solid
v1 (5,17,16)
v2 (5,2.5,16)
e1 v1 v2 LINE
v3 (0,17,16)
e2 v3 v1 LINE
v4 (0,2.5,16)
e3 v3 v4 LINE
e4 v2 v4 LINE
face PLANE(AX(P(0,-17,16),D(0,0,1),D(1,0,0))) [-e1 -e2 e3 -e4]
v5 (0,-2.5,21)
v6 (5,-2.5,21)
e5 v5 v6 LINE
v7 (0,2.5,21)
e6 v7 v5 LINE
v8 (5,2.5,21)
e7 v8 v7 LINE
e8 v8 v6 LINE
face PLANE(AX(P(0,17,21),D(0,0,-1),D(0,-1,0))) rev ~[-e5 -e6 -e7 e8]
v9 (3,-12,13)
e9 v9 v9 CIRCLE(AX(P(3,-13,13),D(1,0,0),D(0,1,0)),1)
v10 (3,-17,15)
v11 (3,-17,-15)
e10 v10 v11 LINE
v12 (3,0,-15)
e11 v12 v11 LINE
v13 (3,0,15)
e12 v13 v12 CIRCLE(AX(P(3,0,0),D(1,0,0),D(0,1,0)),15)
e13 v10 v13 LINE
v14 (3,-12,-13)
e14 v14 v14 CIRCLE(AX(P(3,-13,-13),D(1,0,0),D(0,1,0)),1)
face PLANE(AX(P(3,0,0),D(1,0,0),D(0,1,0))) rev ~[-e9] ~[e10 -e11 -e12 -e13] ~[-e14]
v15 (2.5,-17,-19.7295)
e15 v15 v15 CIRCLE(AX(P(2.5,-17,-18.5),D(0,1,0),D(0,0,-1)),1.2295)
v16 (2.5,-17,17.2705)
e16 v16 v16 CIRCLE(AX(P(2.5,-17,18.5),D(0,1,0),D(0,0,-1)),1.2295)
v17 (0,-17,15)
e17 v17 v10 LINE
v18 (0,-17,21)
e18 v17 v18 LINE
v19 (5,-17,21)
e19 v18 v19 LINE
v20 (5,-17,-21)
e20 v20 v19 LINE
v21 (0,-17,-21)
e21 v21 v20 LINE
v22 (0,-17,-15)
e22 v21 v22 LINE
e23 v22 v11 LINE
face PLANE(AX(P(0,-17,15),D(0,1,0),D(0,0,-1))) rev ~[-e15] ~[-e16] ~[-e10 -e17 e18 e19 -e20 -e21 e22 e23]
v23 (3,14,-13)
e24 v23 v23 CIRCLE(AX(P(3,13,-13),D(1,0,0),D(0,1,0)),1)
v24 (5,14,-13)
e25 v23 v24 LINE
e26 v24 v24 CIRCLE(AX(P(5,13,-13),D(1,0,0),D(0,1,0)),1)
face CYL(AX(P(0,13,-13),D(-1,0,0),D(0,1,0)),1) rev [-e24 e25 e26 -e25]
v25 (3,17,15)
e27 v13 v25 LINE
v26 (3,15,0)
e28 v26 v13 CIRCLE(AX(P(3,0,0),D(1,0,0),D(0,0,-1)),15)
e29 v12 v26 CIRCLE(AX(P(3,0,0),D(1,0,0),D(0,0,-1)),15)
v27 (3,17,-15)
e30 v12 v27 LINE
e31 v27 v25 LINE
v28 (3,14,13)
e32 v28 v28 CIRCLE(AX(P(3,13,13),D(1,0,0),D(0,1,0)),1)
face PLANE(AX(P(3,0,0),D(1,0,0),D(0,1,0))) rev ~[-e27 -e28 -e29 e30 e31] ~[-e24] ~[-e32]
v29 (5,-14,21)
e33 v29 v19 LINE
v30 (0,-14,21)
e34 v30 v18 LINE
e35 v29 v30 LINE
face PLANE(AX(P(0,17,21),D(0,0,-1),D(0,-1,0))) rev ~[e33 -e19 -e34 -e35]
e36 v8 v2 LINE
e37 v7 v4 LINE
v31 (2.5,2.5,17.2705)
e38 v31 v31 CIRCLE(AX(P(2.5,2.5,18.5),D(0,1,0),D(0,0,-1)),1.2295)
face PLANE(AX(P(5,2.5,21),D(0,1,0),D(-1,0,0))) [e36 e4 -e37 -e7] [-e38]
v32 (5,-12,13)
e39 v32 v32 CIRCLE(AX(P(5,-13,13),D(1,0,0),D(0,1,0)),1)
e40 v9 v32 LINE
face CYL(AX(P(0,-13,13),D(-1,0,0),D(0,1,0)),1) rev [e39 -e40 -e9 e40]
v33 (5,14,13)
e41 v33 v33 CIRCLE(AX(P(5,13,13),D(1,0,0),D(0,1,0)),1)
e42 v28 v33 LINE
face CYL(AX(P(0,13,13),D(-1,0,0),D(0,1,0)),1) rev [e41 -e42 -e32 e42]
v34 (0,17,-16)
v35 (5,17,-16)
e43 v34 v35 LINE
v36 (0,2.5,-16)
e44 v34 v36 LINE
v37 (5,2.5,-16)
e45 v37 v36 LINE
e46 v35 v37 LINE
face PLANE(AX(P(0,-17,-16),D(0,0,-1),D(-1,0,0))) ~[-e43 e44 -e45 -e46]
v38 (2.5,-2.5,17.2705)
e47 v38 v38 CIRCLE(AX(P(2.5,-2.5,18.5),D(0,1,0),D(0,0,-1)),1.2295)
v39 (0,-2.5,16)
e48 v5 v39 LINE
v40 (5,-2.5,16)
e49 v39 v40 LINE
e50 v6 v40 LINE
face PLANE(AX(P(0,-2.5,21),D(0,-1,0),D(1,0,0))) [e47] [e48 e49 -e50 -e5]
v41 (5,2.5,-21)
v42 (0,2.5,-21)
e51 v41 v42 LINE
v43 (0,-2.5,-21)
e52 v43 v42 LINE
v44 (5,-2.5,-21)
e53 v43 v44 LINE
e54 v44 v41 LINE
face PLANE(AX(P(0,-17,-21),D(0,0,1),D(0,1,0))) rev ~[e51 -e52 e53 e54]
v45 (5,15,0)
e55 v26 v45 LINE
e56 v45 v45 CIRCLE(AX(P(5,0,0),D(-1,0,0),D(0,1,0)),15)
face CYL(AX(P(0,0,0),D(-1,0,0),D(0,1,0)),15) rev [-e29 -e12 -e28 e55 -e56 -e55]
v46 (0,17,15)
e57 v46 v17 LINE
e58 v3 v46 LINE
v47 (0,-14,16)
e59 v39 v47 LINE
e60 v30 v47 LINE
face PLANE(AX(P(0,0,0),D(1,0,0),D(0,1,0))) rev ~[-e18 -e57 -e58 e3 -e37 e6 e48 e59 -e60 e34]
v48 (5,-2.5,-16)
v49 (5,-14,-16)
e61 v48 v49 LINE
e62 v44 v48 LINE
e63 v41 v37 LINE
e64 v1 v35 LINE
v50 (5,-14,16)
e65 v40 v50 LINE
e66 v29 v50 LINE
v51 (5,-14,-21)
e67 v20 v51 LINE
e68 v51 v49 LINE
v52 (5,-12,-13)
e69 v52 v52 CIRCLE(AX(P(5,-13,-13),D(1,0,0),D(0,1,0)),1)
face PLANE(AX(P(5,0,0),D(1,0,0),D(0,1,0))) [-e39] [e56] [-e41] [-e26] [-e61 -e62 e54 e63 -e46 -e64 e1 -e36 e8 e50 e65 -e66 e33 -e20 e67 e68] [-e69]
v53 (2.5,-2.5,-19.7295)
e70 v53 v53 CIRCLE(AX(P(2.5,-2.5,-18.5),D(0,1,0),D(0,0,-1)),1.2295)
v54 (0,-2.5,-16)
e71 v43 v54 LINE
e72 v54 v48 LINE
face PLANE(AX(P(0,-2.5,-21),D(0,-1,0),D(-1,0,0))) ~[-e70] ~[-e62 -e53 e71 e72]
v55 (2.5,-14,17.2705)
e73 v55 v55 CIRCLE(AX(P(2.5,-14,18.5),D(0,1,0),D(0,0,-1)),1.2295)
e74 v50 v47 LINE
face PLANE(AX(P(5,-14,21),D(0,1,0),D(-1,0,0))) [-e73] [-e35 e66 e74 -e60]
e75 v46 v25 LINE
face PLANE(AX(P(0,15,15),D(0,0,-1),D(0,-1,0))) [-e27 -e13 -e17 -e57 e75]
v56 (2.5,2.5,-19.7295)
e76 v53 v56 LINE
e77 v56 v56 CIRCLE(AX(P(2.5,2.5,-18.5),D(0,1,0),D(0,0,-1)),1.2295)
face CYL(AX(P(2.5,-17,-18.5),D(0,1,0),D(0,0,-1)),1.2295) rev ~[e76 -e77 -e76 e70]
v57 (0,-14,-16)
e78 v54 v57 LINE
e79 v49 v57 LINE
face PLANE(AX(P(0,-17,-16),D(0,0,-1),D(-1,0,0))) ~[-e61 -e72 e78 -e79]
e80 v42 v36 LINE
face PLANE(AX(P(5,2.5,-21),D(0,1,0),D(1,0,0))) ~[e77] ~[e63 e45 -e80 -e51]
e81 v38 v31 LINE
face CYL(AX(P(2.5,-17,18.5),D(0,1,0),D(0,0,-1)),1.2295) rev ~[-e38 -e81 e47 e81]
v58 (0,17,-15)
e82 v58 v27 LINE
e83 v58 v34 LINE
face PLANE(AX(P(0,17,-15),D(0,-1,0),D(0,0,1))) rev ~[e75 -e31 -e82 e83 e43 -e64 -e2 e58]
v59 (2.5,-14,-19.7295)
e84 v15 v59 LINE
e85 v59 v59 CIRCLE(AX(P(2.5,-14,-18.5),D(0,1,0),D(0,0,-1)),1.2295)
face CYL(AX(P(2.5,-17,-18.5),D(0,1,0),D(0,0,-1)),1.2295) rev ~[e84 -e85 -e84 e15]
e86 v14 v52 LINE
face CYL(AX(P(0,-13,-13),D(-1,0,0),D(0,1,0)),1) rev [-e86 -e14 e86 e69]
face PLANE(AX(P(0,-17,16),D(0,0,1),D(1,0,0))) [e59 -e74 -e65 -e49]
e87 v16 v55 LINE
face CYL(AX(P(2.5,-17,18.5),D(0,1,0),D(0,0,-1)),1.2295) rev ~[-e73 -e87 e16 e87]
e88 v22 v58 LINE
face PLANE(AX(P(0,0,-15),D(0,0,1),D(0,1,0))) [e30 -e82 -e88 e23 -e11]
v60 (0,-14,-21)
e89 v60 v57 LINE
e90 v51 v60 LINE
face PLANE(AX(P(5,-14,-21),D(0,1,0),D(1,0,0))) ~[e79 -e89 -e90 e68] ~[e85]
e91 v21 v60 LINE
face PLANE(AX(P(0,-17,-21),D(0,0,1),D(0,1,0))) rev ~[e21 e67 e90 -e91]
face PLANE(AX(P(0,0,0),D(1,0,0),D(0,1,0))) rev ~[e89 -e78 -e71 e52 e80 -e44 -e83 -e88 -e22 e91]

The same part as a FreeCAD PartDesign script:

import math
import FreeCAD as App
import Part
import Sketcher
Q = App.Units.Quantity

doc = App.newDocument("Part")
body = doc.addObject("PartDesign::Body", "Body")

# Sketch on YZ plane
sketch1 = body.newObject("Sketcher::SketchObject", "Sketch")
sketch1.AttachmentSupport = (doc.getObject("YZ_Plane"), [""])
sketch1.MapMode = "FlatFace"
sketch1.addGeometry(Part.LineSegment(App.Vector(17, 21, 0), App.Vector(-17, 21, 0)), False)
sketch1.addGeometry(Part.LineSegment(App.Vector(-17, 21, 0), App.Vector(-17, -21, 0)), False)
sketch1.addGeometry(Part.LineSegment(App.Vector(-17, -21, 0), App.Vector(17, -21, 0)), False)
sketch1.addGeometry(Part.LineSegment(App.Vector(17, -21, 0), App.Vector(17, 21, 0)), False)
sketch1.addConstraint(Sketcher.Constraint("Coincident", 0, 2, 1, 1))
sketch1.addConstraint(Sketcher.Constraint("Coincident", 1, 2, 2, 1))
sketch1.addConstraint(Sketcher.Constraint("Coincident", 2, 2, 3, 1))
sketch1.addConstraint(Sketcher.Constraint("Coincident", 3, 2, 0, 1))
sketch1.addConstraint(Sketcher.Constraint("Horizontal", 0))
sketch1.addConstraint(Sketcher.Constraint("Vertical", 1))
sketch1.addConstraint(Sketcher.Constraint("Horizontal", 2))
sketch1.addConstraint(Sketcher.Constraint("Vertical", 3))
sketch1.addConstraint(Sketcher.Constraint("Symmetric", 0, 2, 2, 2, -1, 1))
sketch1.addConstraint(Sketcher.Constraint("DistanceX", 0, 2, 0, 1, Q("34 mm")))
sketch1.addConstraint(Sketcher.Constraint("DistanceY", 1, 2, 1, 1, Q("42 mm")))
pad1 = body.newObject("PartDesign::Pad", "Pad")
pad1.Profile = sketch1
pad1.Length = 5

# Sketch on YZ plane
sketch2 = body.newObject("Sketcher::SketchObject", "Sketch001")
sketch2.AttachmentSupport = (doc.getObject("YZ_Plane"), [""])
sketch2.MapMode = "FlatFace"
sketch2.addGeometry(Part.ArcOfCircle(Part.Circle(App.Vector(0, 0, 0), App.Vector(0, 0, 1), 15), math.radians(-90), math.radians(90)), False)
sketch2.addGeometry(Part.LineSegment(App.Vector(0, -15, 0), App.Vector(17, -15, 0)), False)
sketch2.addGeometry(Part.LineSegment(App.Vector(17, -15, 0), App.Vector(17, 15, 0)), False)
sketch2.addGeometry(Part.LineSegment(App.Vector(17, 15, 0), App.Vector(0, 15, 0)), False)
sketch2.addGeometry(Part.Circle(App.Vector(13, -13, 0), App.Vector(0, 0, 1), 1), False)
sketch2.addGeometry(Part.Circle(App.Vector(13, 13, 0), App.Vector(0, 0, 1), 1), False)
sketch2.addGeometry(Part.ArcOfCircle(Part.Circle(App.Vector(0, 0, 0), App.Vector(0, 0, 1), 15), math.radians(90), math.radians(270)), False)
sketch2.addGeometry(Part.LineSegment(App.Vector(0, 15, 0), App.Vector(-17, 15, 0)), False)
sketch2.addGeometry(Part.LineSegment(App.Vector(-17, 15, 0), App.Vector(-17, -15, 0)), False)
sketch2.addGeometry(Part.LineSegment(App.Vector(-17, -15, 0), App.Vector(0, -15, 0)), False)
sketch2.addGeometry(Part.Circle(App.Vector(-13, -13, 0), App.Vector(0, 0, 1), 1), False)
sketch2.addGeometry(Part.Circle(App.Vector(-13, 13, 0), App.Vector(0, 0, 1), 1), False)
sketch2.addConstraint(Sketcher.Constraint("Tangent", 0, 1, 1, 1))
sketch2.addConstraint(Sketcher.Constraint("Coincident", 1, 2, 2, 1))
sketch2.addConstraint(Sketcher.Constraint("Coincident", 2, 2, 3, 1))
sketch2.addConstraint(Sketcher.Constraint("Tangent", 3, 2, 0, 2))
sketch2.addConstraint(Sketcher.Constraint("Tangent", 6, 1, 7, 1))
sketch2.addConstraint(Sketcher.Constraint("Coincident", 7, 2, 8, 1))
sketch2.addConstraint(Sketcher.Constraint("Coincident", 8, 2, 9, 1))
sketch2.addConstraint(Sketcher.Constraint("Tangent", 9, 2, 6, 2))
sketch2.addConstraint(Sketcher.Constraint("Horizontal", 1))
sketch2.addConstraint(Sketcher.Constraint("Vertical", 2))
sketch2.addConstraint(Sketcher.Constraint("Horizontal", 3))
sketch2.addConstraint(Sketcher.Constraint("Horizontal", 7))
sketch2.addConstraint(Sketcher.Constraint("Vertical", 8))
sketch2.addConstraint(Sketcher.Constraint("Horizontal", 9))
sketch2.addConstraint(Sketcher.Constraint("Coincident", 0, 3, -1, 1))
sketch2.addConstraint(Sketcher.Constraint("Coincident", 6, 3, -1, 1))
sketch2.addConstraint(Sketcher.Constraint("Equal", 4, 5))
sketch2.addConstraint(Sketcher.Constraint("Equal", 0, 6))
sketch2.addConstraint(Sketcher.Constraint("Equal", 5, 10))
sketch2.addConstraint(Sketcher.Constraint("Equal", 10, 11))
sketch2.addConstraint(Sketcher.Constraint("Symmetric", 5, 3, 10, 3, -1, 1))
sketch2.addConstraint(Sketcher.Constraint("Symmetric", 4, 3, 11, 3, -1, 1))
sketch2.addConstraint(Sketcher.Constraint("Symmetric", 4, 3, 10, 3, -2))
sketch2.addConstraint(Sketcher.Constraint("Equal", 3, 7))
sketch2.addConstraint(Sketcher.Constraint("Diameter", 4, Q("2 mm")))
sketch2.addConstraint(Sketcher.Constraint("Radius", 0, Q("15 mm")))
sketch2.addConstraint(Sketcher.Constraint("DistanceY", 4, 3, 5, 3, Q("26 mm")))
sketch2.addConstraint(Sketcher.Constraint("DistanceX", 10, 3, 4, 3, Q("26 mm")))
sketch2.addConstraint(Sketcher.Constraint("DistanceX", 1, 1, 1, 2, Q("17 mm")))
pocket1 = body.newObject("PartDesign::Pocket", "Pocket")
pocket1.Profile = sketch2
pocket1.Length = 3
pocket1.Reversed = True

# Sketch on YZ plane
sketch3 = body.newObject("Sketcher::SketchObject", "Sketch002")
sketch3.AttachmentSupport = (doc.getObject("YZ_Plane"), [""])
sketch3.MapMode = "FlatFace"
sketch3.addGeometry(Part.Circle(App.Vector(0, 0, 0), App.Vector(0, 0, 1), 15), False)
sketch3.addGeometry(Part.Circle(App.Vector(13, -13, 0), App.Vector(0, 0, 1), 1), False)
sketch3.addGeometry(Part.Circle(App.Vector(13, 13, 0), App.Vector(0, 0, 1), 1), False)
sketch3.addGeometry(Part.Circle(App.Vector(-13, -13, 0), App.Vector(0, 0, 1), 1), False)
sketch3.addGeometry(Part.Circle(App.Vector(-13, 13, 0), App.Vector(0, 0, 1), 1), False)
sketch3.addConstraint(Sketcher.Constraint("Coincident", 0, 3, -1, 1))
sketch3.addConstraint(Sketcher.Constraint("Equal", 1, 2))
sketch3.addConstraint(Sketcher.Constraint("Equal", 2, 3))
sketch3.addConstraint(Sketcher.Constraint("Equal", 3, 4))
sketch3.addConstraint(Sketcher.Constraint("Symmetric", 2, 3, 3, 3, -1, 1))
sketch3.addConstraint(Sketcher.Constraint("Symmetric", 1, 3, 4, 3, -1, 1))
sketch3.addConstraint(Sketcher.Constraint("Symmetric", 1, 3, 3, 3, -2))
sketch3.addConstraint(Sketcher.Constraint("Diameter", 0, Q("30 mm")))
sketch3.addConstraint(Sketcher.Constraint("Diameter", 1, Q("2 mm")))
sketch3.addConstraint(Sketcher.Constraint("DistanceY", 1, 3, 2, 3, Q("26 mm")))
sketch3.addConstraint(Sketcher.Constraint("DistanceX", 3, 3, 1, 3, Q("26 mm")))
pocket2 = body.newObject("PartDesign::Pocket", "Pocket001")
pocket2.Profile = sketch3
pocket2.Length = 5
pocket2.Reversed = True

# Sketch on XY plane
sketch4 = body.newObject("Sketcher::SketchObject", "Sketch003")
sketch4.AttachmentSupport = (doc.getObject("XY_Plane"), [""])
sketch4.MapMode = "FlatFace"
sketch4.AttachmentOffset = App.Placement(App.Vector(0, 0, 21), App.Rotation())
sketch4.addGeometry(Part.LineSegment(App.Vector(5, 17, 0), App.Vector(0, 17, 0)), False)
sketch4.addGeometry(Part.LineSegment(App.Vector(0, 17, 0), App.Vector(0, 2, 0)), False)
sketch4.addGeometry(Part.LineSegment(App.Vector(0, 2, 0), App.Vector(5, 2, 0)), False)
sketch4.addGeometry(Part.LineSegment(App.Vector(5, 2, 0), App.Vector(5, 17, 0)), False)
sketch4.addGeometry(Part.LineSegment(App.Vector(5, -2, 0), App.Vector(0, -2, 0)), False)
sketch4.addGeometry(Part.LineSegment(App.Vector(0, -2, 0), App.Vector(0, -14, 0)), False)
sketch4.addGeometry(Part.LineSegment(App.Vector(0, -14, 0), App.Vector(5, -14, 0)), False)
sketch4.addGeometry(Part.LineSegment(App.Vector(5, -14, 0), App.Vector(5, -2, 0)), False)
sketch4.addConstraint(Sketcher.Constraint("Coincident", 0, 2, 1, 1))
sketch4.addConstraint(Sketcher.Constraint("Coincident", 1, 2, 2, 1))
sketch4.addConstraint(Sketcher.Constraint("Coincident", 2, 2, 3, 1))
sketch4.addConstraint(Sketcher.Constraint("Coincident", 3, 2, 0, 1))
sketch4.addConstraint(Sketcher.Constraint("Coincident", 4, 2, 5, 1))
sketch4.addConstraint(Sketcher.Constraint("Coincident", 5, 2, 6, 1))
sketch4.addConstraint(Sketcher.Constraint("Coincident", 6, 2, 7, 1))
sketch4.addConstraint(Sketcher.Constraint("Coincident", 7, 2, 4, 1))
sketch4.addConstraint(Sketcher.Constraint("Horizontal", 0))
sketch4.addConstraint(Sketcher.Constraint("Vertical", 1))
sketch4.addConstraint(Sketcher.Constraint("Horizontal", 2))
sketch4.addConstraint(Sketcher.Constraint("Vertical", 3))
sketch4.addConstraint(Sketcher.Constraint("Horizontal", 4))
sketch4.addConstraint(Sketcher.Constraint("Vertical", 5))
sketch4.addConstraint(Sketcher.Constraint("Horizontal", 6))
sketch4.addConstraint(Sketcher.Constraint("Vertical", 7))
sketch4.addConstraint(Sketcher.Constraint("Symmetric", 1, 2, 4, 2, -1, 1))
sketch4.addConstraint(Sketcher.Constraint("PointOnObject", 0, 2, -2))
sketch4.addConstraint(Sketcher.Constraint("Vertical", 3, 2, 6, 2))
sketch4.addConstraint(Sketcher.Constraint("DistanceX", 0, 2, 0, 1, Q("5 mm")))
sketch4.addConstraint(Sketcher.Constraint("DistanceY", 4, 2, 1, 2, Q("5 mm")))
sketch4.addConstraint(Sketcher.Constraint("DistanceY", 1, 2, 1, 1, Q("14.5 mm")))
sketch4.addConstraint(Sketcher.Constraint("DistanceY", 5, 2, 5, 1, Q("11.5 mm")))
pocket3 = body.newObject("PartDesign::Pocket", "Pocket002")
pocket3.Profile = sketch4
pocket3.Length = 5
doc.recompute()

mirrored = body.newObject("PartDesign::Mirrored", "Mirrored")
mirrored.Originals = [pocket3]
mirrored.MirrorPlane = (doc.getObject("XY_Plane"), [""])
body.Tip = mirrored

# Sketch on XZ plane
sketch5 = body.newObject("Sketcher::SketchObject", "Sketch004")
sketch5.AttachmentSupport = (doc.getObject("XZ_Plane"), [""])
sketch5.MapMode = "FlatFace"
sketch5.AttachmentOffset = App.Placement(App.Vector(0, 0, 17), App.Rotation())
sketch5.addGeometry(Part.Circle(App.Vector(2.5, 18.5, 0), App.Vector(0, 0, 1), 1.2), False)
sketch5.addGeometry(Part.Circle(App.Vector(2.5, -18.5, 0), App.Vector(0, 0, 1), 1.2), False)
sketch5.addConstraint(Sketcher.Constraint("Equal", 0, 1))
sketch5.addConstraint(Sketcher.Constraint("Symmetric", 0, 3, 1, 3, -1))
sketch5.addConstraint(Sketcher.Constraint("Diameter", 0, Q("2.459 mm")))
sketch5.addConstraint(Sketcher.Constraint("DistanceY", 1, 3, 0, 3, Q("37 mm")))
sketch5.addConstraint(Sketcher.Constraint("DistanceX", -1, 1, 0, 3, Q("2.5 mm")))
doc.recompute()
hole = body.newObject("PartDesign::Hole", "Hole")
hole.Profile = sketch5
hole.ThreadType = "None"
hole.Diameter = 2.459
hole.DepthType = "ThroughAll"

doc.recompute()
